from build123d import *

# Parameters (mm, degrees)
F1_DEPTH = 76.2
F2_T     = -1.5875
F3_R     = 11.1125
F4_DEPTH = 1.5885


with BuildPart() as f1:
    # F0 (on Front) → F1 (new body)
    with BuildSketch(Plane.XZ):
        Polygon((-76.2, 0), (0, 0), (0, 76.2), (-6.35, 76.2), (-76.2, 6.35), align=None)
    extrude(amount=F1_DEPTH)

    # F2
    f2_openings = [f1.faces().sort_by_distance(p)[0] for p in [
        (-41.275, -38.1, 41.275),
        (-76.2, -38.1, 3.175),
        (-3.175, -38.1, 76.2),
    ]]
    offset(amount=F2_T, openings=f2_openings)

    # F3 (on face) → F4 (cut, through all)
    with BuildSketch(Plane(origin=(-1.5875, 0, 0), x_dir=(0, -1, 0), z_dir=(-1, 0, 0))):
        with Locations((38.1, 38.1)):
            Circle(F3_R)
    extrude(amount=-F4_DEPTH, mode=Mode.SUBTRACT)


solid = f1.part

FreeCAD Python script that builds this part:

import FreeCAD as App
import Part
import Sketcher

V = App.Vector
Q = App.Units.Quantity


def faces_at(feature, points):
    """Names of the faces that lie closest to the given points."""
    faces = feature.Shape.Faces
    near = lambda p: min(range(len(faces)), key=lambda i: faces[i].distToShape(Part.Vertex(*p))[0])
    return sorted({f"Face{near(p) + 1}" for p in points})


def add_polygon(sketch, points):
    """Adds a closed chain of lines whose ends are joined by coincident constraints."""
    first, n = sketch.GeometryCount, len(points)
    for a, b in zip(points, points[1:] + points[:1]):
        sketch.addGeometry(Part.LineSegment(App.Vector(*a, 0), App.Vector(*b, 0)), False)
    for i in range(n):
        sketch.addConstraint(Sketcher.Constraint("Coincident", first + i, 2, first + (i + 1) % n, 1))

doc = App.newDocument("Part")
params = doc.addObject("Spreadsheet::Sheet", "Params")
for row, (alias, value) in enumerate([
    ("sketch1_width", "3 in"),
    ("sketch1_width2", "0.25 in"),
    ("pad1_length", "3 in"),
    ("thickness_wall", "0.0625 in"),
    ("sketch2_diameter", "0.875 in"),
], start=1):
    params.set(f"A{row}", alias)
    params.set(f"B{row}", "=" + value)
    params.setAlias(f"B{row}", alias)

body = doc.addObject("PartDesign::Body", "Body")

# Sketch on XZ plane
sketch1 = body.newObject("Sketcher::SketchObject", "Sketch")
sketch1.AttachmentSupport = (doc.getObject("XZ_Plane"), [""])
sketch1.MapMode = "FlatFace"
add_polygon(sketch1, [(-76, 0), (0, 0), (0, 76), (-6, 76), (-76, 6)])  # lines 0-4
sketch1.addConstraint([
    Sketcher.Constraint("Horizontal", 0),
    Sketcher.Constraint("Vertical", 1),
    Sketcher.Constraint("Horizontal", 2),
    Sketcher.Constraint("Vertical", 4),
    Sketcher.Constraint("Coincident", 0, 2, -1, 1),
    Sketcher.Constraint("Equal", 0, 1),
    Sketcher.Constraint("Equal", 2, 4),
    Sketcher.Constraint("DistanceX", 0, 1, 0, 2, Q("3 in")),
    Sketcher.Constraint("DistanceX", 2, 2, 2, 1, Q("0.25 in")),
])
sketch1.setExpression("Constraints[12]", "Params.sketch1_width")
sketch1.setExpression("Constraints[13]", "Params.sketch1_width2")
pad1 = body.newObject("PartDesign::Pad", "Pad")
pad1.Profile = sketch1
pad1.setExpression("Length", "Params.pad1_length")
doc.recompute()

thickness = body.newObject("PartDesign::Thickness", "Thickness")
thickness.Base = (pad1, faces_at(pad1, [(-41.275, -38.1, 41.275), (-76.2, -38.1, 3.175), (-3.175, -38.1, 76.2)]))
thickness.setExpression("Value", "Params.thickness_wall")
thickness.Reversed = True
thickness.Join = "Arc"

# Sketch on YZ plane
sketch2 = body.newObject("Sketcher::SketchObject", "Sketch001")
sketch2.AttachmentSupport = (doc.getObject("YZ_Plane"), [""])
sketch2.MapMode = "FlatFace"
sketch2.AttachmentOffset = App.Placement(V(0, 0, -0.0625 * 25.4), App.Rotation())
sketch2.addGeometry(Part.Circle(V(-38, 38, 0), V(0, 0, 1), 11), False)
sketch2.addConstraint([
    Sketcher.Constraint("Diameter", 0, Q("0.875 in")),
    Sketcher.Constraint("DistanceX", 0, 3, -1, 1, Q("1.5 in")),
    Sketcher.Constraint("DistanceY", -1, 1, 0, 3, Q("1.5 in")),
])
sketch2.setExpression("Constraints[0]", "Params.sketch2_diameter")
pocket1 = body.newObject("PartDesign::Pocket", "Pocket")
pocket1.Profile = sketch2
pocket1.Type = "ThroughAll"
pocket1.Reversed = True

doc.recompute()
